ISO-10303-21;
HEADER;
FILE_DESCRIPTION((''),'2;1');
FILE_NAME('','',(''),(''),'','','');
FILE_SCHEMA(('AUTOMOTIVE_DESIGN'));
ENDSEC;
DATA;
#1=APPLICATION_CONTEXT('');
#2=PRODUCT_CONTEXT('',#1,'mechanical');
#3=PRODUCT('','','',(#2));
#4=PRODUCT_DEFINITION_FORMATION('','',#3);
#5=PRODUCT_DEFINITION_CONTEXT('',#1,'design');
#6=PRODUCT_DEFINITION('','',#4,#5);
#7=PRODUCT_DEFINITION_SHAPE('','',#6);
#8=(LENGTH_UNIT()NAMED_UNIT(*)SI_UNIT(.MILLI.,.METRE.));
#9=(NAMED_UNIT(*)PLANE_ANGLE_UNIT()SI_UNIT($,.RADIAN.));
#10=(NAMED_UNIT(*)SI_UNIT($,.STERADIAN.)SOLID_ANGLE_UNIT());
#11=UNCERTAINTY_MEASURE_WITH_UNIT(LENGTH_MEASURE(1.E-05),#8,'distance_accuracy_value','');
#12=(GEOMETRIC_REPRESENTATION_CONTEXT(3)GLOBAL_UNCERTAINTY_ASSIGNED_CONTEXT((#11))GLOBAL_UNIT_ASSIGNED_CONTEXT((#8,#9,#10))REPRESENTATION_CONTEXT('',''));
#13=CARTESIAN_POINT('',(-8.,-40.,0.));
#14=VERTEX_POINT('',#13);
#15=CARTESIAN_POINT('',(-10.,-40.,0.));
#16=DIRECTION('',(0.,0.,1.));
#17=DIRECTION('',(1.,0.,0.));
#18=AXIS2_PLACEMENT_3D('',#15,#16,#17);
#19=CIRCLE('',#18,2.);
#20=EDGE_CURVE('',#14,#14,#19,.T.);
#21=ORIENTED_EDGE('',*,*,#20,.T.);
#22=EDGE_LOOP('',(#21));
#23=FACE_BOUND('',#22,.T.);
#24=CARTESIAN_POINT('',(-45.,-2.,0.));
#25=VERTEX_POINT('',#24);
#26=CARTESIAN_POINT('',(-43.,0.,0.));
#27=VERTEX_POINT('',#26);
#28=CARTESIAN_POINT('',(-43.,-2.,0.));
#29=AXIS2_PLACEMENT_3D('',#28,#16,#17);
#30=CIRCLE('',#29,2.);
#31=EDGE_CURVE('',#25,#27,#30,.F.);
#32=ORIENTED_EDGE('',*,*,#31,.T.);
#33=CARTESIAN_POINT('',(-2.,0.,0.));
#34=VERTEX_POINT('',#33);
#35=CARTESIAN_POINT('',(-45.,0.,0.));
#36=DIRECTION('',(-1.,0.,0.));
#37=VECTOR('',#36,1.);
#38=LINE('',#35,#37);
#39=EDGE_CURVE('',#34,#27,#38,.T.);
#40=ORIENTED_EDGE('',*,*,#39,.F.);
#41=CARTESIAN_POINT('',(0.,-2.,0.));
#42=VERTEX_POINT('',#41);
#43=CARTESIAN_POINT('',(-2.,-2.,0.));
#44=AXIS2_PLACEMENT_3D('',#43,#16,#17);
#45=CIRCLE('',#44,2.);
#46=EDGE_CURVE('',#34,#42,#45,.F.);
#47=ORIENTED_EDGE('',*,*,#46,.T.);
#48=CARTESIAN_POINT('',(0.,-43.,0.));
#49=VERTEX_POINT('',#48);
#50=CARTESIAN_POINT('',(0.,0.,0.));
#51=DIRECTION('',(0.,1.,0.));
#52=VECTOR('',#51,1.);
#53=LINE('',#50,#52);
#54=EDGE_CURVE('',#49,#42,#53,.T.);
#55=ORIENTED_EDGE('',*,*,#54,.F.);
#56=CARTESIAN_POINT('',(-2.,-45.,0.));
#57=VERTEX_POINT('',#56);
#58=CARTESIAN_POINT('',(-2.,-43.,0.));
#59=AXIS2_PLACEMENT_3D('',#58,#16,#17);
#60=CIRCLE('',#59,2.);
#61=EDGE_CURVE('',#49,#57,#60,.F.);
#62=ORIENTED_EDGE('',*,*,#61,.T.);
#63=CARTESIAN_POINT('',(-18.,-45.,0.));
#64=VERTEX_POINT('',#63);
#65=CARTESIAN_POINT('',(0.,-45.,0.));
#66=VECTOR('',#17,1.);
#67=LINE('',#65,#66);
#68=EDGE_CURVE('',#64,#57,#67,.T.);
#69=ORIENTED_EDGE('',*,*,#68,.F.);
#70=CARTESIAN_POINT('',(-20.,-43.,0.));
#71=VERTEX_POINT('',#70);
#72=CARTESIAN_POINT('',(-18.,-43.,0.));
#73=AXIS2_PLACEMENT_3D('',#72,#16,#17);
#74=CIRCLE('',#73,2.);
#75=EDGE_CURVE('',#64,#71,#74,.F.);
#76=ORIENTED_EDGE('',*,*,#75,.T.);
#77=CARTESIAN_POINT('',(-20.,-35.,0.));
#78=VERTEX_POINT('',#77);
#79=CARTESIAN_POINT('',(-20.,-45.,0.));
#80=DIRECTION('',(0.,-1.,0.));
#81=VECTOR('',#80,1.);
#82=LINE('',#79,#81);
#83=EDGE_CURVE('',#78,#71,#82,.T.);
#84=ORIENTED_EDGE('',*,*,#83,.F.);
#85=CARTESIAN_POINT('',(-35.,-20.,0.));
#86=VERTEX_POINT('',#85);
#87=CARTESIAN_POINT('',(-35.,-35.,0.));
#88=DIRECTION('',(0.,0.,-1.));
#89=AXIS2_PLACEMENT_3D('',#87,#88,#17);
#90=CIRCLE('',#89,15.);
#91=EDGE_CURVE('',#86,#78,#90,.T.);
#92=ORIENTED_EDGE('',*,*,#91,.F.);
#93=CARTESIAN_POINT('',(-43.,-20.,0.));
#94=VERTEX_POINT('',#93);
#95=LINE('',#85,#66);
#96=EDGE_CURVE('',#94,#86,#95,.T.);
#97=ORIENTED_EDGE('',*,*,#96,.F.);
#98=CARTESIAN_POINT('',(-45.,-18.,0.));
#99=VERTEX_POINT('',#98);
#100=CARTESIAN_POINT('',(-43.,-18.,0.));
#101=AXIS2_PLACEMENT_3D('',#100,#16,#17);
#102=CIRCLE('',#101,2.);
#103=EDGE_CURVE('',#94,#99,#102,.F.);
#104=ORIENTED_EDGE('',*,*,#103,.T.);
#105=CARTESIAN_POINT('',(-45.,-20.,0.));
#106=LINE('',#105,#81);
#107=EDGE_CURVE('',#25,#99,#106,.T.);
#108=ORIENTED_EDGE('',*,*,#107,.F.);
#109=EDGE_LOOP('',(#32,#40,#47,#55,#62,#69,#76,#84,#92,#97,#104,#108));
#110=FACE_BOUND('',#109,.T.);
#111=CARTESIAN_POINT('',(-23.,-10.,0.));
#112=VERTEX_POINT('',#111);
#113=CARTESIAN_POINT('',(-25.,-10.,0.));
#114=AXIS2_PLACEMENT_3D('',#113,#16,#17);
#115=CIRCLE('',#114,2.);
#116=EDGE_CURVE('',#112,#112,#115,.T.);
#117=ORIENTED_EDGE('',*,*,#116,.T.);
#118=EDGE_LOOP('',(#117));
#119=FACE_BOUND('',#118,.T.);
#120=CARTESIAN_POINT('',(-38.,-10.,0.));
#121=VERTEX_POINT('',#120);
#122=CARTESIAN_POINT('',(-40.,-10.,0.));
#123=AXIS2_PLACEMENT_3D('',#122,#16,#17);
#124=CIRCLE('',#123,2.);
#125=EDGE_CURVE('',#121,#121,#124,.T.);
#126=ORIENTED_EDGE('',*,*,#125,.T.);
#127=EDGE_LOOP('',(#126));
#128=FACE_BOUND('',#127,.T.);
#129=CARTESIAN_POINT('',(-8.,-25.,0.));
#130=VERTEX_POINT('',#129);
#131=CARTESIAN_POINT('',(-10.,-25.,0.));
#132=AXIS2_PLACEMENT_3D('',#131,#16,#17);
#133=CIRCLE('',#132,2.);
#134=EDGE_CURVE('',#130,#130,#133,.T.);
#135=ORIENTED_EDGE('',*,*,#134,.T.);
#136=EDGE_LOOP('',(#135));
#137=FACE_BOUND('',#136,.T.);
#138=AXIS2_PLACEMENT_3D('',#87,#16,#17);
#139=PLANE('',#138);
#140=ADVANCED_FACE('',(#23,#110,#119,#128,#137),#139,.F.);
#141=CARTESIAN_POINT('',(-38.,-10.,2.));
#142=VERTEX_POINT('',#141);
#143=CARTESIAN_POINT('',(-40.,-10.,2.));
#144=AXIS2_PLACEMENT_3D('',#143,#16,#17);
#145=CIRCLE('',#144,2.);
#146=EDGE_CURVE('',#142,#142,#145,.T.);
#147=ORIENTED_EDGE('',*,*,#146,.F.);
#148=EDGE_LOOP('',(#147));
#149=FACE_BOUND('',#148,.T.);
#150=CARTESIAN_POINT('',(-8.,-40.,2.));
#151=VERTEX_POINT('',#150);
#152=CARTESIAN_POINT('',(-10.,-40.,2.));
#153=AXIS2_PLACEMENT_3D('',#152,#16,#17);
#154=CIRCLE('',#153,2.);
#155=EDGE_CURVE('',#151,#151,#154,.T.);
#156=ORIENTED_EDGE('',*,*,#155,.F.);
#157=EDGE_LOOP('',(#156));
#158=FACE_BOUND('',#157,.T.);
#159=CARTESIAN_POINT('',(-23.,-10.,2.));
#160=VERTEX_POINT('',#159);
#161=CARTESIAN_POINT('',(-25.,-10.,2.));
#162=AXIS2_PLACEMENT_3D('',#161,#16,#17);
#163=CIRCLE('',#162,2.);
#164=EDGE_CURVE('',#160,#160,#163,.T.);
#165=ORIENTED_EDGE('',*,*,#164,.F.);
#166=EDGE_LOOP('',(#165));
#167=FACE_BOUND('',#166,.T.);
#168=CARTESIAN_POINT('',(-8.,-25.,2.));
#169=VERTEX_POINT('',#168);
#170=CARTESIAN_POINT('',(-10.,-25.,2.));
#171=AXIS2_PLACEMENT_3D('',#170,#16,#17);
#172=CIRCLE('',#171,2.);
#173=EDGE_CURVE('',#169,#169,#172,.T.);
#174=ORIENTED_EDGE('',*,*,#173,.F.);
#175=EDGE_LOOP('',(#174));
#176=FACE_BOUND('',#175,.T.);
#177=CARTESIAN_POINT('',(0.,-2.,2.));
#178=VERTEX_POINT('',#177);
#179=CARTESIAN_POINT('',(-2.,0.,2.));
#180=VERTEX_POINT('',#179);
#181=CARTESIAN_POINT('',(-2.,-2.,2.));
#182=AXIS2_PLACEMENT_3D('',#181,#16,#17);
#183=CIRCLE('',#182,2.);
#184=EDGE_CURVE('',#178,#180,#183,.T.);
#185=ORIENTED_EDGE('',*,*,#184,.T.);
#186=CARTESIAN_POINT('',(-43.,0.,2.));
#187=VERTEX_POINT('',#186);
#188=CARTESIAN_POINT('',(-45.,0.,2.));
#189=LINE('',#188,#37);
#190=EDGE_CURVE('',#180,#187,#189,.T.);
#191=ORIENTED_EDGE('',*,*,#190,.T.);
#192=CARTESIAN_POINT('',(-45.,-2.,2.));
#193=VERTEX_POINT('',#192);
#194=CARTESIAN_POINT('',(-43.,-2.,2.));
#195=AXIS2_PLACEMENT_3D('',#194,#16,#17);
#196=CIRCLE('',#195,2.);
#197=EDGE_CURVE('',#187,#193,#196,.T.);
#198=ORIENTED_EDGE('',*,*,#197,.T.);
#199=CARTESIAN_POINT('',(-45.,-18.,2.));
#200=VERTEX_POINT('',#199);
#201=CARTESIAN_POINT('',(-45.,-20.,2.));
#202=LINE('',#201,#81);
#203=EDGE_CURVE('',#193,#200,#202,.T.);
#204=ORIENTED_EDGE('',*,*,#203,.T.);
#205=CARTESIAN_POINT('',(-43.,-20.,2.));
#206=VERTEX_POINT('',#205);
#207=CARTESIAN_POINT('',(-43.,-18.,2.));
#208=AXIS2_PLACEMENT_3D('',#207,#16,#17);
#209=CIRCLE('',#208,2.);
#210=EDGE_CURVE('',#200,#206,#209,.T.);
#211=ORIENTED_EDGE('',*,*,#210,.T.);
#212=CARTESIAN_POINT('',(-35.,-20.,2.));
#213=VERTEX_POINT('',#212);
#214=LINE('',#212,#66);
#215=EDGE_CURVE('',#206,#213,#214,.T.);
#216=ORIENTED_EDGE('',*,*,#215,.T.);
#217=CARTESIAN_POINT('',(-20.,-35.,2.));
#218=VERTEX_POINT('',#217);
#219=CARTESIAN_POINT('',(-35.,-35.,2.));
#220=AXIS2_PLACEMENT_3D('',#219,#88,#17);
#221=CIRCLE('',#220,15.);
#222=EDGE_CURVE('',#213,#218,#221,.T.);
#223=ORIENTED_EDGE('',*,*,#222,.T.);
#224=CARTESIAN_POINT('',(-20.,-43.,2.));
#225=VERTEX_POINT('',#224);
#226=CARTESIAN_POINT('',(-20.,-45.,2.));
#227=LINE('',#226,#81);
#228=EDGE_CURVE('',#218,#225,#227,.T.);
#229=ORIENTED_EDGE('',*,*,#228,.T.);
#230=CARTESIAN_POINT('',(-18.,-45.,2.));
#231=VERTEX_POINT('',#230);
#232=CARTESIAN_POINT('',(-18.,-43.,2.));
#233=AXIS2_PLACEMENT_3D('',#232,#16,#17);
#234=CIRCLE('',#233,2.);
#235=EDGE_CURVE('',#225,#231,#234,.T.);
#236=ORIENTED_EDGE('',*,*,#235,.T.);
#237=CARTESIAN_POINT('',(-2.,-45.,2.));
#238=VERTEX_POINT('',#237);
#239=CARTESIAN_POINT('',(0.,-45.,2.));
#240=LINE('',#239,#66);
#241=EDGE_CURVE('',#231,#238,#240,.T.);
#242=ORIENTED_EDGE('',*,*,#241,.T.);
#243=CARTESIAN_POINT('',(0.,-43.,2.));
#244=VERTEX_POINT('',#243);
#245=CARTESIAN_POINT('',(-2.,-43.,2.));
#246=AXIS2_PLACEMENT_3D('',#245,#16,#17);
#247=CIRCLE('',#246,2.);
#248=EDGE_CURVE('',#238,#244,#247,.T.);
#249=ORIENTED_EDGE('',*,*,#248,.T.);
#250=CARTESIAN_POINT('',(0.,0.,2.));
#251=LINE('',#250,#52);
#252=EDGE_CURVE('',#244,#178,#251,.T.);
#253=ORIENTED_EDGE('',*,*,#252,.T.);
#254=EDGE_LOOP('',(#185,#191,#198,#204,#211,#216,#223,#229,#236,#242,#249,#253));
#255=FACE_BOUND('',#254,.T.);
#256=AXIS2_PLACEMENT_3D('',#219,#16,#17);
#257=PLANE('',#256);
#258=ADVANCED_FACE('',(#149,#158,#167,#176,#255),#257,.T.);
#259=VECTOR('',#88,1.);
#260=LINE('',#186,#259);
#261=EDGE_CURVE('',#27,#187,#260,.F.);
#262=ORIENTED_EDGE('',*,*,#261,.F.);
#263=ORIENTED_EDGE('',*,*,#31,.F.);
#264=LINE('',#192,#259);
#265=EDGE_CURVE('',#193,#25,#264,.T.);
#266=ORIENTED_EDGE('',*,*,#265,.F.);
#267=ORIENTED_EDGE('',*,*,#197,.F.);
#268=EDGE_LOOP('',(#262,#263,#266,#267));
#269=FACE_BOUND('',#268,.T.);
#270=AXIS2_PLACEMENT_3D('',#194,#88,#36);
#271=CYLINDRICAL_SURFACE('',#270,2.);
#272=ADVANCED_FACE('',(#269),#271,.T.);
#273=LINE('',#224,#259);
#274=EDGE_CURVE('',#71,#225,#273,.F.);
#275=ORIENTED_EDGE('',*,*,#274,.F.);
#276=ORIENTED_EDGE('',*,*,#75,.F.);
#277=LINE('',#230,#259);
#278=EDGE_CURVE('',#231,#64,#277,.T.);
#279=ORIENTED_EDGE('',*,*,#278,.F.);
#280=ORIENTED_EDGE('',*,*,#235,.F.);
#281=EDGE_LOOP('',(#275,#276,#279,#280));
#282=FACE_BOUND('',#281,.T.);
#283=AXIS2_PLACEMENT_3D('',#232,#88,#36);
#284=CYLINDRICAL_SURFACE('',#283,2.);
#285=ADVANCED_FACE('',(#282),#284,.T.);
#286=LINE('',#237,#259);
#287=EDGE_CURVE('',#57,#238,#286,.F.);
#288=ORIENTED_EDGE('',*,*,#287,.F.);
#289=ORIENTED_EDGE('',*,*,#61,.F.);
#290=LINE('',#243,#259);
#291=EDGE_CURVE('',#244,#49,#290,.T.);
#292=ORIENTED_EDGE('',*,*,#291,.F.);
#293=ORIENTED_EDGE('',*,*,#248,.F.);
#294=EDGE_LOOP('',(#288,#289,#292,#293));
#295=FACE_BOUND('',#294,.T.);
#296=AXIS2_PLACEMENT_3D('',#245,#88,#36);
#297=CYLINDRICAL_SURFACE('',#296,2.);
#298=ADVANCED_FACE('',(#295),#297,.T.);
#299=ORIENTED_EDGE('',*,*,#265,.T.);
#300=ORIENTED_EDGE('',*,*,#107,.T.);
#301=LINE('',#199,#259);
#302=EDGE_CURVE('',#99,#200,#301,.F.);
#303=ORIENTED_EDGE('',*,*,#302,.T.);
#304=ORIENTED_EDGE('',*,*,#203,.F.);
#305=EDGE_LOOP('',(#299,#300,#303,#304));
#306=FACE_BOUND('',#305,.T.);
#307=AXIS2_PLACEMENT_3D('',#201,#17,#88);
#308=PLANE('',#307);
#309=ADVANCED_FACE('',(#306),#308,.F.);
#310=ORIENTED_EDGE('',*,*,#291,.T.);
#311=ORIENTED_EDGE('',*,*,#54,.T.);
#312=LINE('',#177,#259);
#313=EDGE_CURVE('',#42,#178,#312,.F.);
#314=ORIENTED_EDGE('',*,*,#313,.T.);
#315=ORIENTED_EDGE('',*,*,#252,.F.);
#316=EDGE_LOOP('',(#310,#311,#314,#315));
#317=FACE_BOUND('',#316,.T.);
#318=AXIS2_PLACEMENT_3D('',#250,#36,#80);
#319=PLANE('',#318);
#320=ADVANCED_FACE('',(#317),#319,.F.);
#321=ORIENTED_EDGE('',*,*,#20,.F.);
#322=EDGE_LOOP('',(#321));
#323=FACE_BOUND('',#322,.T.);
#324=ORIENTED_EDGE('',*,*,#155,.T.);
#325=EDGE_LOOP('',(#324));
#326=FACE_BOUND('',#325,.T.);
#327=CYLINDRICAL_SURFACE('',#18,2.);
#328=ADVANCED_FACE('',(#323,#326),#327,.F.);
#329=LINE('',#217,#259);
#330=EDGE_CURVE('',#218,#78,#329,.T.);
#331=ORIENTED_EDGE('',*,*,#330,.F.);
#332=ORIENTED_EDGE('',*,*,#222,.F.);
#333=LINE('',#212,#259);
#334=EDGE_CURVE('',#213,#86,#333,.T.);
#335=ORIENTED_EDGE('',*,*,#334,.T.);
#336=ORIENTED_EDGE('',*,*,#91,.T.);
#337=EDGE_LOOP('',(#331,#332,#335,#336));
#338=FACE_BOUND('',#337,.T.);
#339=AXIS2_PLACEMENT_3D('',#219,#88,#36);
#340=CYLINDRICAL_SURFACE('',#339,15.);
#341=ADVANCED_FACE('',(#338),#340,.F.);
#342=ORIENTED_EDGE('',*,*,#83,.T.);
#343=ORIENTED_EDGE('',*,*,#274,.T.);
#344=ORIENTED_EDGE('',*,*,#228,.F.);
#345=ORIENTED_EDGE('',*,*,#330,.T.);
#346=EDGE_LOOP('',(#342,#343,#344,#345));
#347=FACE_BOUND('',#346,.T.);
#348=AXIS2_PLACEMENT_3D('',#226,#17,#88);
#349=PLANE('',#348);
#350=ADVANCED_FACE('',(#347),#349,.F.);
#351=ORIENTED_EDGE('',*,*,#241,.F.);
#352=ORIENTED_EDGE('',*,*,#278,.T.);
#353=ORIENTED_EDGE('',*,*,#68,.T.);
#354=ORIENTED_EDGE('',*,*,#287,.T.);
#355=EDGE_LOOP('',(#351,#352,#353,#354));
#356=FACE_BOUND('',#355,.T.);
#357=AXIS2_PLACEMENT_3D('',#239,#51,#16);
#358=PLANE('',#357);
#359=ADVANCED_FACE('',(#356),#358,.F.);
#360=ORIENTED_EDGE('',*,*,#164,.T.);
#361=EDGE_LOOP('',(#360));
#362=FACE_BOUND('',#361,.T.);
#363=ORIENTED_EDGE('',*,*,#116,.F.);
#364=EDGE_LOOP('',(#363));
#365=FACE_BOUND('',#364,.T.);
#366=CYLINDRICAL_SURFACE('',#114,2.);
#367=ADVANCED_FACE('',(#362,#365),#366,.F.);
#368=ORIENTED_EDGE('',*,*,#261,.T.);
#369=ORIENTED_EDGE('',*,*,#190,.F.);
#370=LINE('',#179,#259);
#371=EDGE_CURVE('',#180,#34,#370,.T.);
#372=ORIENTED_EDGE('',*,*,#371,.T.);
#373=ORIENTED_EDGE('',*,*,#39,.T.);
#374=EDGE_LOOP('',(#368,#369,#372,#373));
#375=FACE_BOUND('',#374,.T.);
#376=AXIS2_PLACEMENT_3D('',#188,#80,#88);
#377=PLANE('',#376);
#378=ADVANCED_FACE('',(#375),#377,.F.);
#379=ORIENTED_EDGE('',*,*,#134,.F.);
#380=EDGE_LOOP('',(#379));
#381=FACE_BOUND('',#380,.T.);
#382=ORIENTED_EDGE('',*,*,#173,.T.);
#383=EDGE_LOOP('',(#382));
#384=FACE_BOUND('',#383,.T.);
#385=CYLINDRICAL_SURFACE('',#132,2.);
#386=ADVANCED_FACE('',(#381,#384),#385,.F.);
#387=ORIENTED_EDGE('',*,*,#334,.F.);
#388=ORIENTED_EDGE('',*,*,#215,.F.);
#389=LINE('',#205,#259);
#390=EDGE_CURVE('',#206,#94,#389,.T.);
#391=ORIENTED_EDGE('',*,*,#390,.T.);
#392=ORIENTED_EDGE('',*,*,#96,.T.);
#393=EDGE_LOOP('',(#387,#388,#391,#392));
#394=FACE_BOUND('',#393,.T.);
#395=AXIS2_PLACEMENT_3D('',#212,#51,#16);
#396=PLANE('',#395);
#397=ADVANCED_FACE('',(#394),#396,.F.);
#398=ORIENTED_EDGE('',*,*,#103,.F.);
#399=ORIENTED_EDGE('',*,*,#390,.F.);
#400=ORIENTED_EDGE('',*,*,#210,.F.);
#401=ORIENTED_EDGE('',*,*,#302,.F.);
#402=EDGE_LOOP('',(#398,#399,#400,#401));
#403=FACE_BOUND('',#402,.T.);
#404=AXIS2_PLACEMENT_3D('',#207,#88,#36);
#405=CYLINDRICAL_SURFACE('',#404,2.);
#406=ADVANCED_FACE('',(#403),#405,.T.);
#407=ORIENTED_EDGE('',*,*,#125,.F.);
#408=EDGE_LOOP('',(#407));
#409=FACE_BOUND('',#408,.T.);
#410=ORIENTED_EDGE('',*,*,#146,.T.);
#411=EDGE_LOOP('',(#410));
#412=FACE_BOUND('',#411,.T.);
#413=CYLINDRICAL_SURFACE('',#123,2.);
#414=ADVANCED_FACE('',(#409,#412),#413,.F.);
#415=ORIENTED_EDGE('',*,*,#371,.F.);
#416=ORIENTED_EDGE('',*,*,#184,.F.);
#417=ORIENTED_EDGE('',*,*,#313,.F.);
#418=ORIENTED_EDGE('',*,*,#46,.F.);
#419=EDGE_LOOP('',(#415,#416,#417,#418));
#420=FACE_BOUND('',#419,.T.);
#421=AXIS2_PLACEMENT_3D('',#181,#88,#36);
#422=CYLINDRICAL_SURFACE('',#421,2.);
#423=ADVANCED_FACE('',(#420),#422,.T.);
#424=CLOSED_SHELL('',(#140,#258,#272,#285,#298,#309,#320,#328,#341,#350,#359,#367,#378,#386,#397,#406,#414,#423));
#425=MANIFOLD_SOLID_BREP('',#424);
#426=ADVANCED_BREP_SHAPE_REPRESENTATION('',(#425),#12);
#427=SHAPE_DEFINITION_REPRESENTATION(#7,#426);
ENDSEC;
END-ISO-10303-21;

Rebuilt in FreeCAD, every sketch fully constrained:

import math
import FreeCAD as App
import Part
import Sketcher

V = App.Vector
Q = App.Units.Quantity


def edges_at(feature, points):
    """Names of the edges that pass closest to the given points."""
    edges = feature.Shape.Edges
    near = lambda p: min(range(len(edges)), key=lambda i: edges[i].distToShape(Part.Vertex(*p))[0])
    return sorted({f"Edge{near(p) + 1}" for p in points})

doc = App.newDocument("Part")
body = doc.addObject("PartDesign::Body", "Body")

sketch1 = body.newObject("Sketcher::SketchObject", "Sketch")
sketch1.AttachmentSupport = (doc.getObject("XY_Plane"), [""])
sketch1.MapMode = "FlatFace"
sketch1.addGeometry(Part.LineSegment(V(0, -45, 0), V(0, 0, 0)), False)
sketch1.addGeometry(Part.LineSegment(V(0, 0, 0), V(-45, 0, 0)), False)
sketch1.addGeometry(Part.LineSegment(V(-45, 0, 0), V(-45, -20, 0)), False)
sketch1.addGeometry(Part.LineSegment(V(-45, -20, 0), V(-35, -20, 0)), False)
sketch1.addGeometry(Part.ArcOfCircle(Part.Circle(V(-35, -35, 0), V(0, 0, 1), 15), math.radians(0), math.radians(90)), False)
sketch1.addGeometry(Part.LineSegment(V(-20, -35, 0), V(-20, -45, 0)), False)
sketch1.addGeometry(Part.LineSegment(V(-20, -45, 0), V(0, -45, 0)), False)
sketch1.addConstraint(Sketcher.Constraint("Coincident", 0, 2, 1, 1))
sketch1.addConstraint(Sketcher.Constraint("Coincident", 1, 2, 2, 1))
sketch1.addConstraint(Sketcher.Constraint("Coincident", 2, 2, 3, 1))
sketch1.addConstraint(Sketcher.Constraint("Tangent", 3, 2, 4, 2))
sketch1.addConstraint(Sketcher.Constraint("Tangent", 4, 1, 5, 1))
sketch1.addConstraint(Sketcher.Constraint("Coincident", 5, 2, 6, 1))
sketch1.addConstraint(Sketcher.Constraint("Coincident", 6, 2, 0, 1))
sketch1.addConstraint(Sketcher.Constraint("Vertical", 0))
sketch1.addConstraint(Sketcher.Constraint("Horizontal", 1))
sketch1.addConstraint(Sketcher.Constraint("Vertical", 2))
sketch1.addConstraint(Sketcher.Constraint("Horizontal", 3))
sketch1.addConstraint(Sketcher.Constraint("Vertical", 5))
sketch1.addConstraint(Sketcher.Constraint("Horizontal", 6))
sketch1.addConstraint(Sketcher.Constraint("Coincident", 0, 2, -1, 1))
sketch1.addConstraint(Sketcher.Constraint("Equal", 1, 0))
sketch1.addConstraint(Sketcher.Constraint("Equal", 6, 2))
sketch1.addConstraint(Sketcher.Constraint("Radius", 4, Q("15 mm")))
sketch1.addConstraint(Sketcher.Constraint("DistanceX", 1, 2, 1, 1, Q("45 mm")))
sketch1.addConstraint(Sketcher.Constraint("DistanceX", 3, 1, 3, 2, Q("10 mm")))
pad1 = body.newObject("PartDesign::Pad", "Pad")
pad1.Profile = sketch1
pad1.Length = 2

sketch2 = body.newObject("Sketcher::SketchObject", "Sketch001")
sketch2.AttachmentSupport = (doc.getObject("XY_Plane"), [""])
sketch2.MapMode = "FlatFace"
sketch2.AttachmentOffset = App.Placement(V(0, 0, 2), App.Rotation())
sketch2.addGeometry(Part.Circle(V(-10, -40, 0), V(0, 0, 1), 2), False)
sketch2.addGeometry(Part.Circle(V(-10, -25, 0), V(0, 0, 1), 2), False)
sketch2.addGeometry(Part.Circle(V(-25, -10, 0), V(0, 0, 1), 2), False)
sketch2.addGeometry(Part.Circle(V(-40, -10, 0), V(0, 0, 1), 2), False)
sketch2.addConstraint(Sketcher.Constraint("Equal", 0, 1))
sketch2.addConstraint(Sketcher.Constraint("Equal", 1, 2))
sketch2.addConstraint(Sketcher.Constraint("Equal", 2, 3))
sketch2.addConstraint(Sketcher.Constraint("Horizontal", 2, 3, 3, 3))
sketch2.addConstraint(Sketcher.Constraint("Vertical", 0, 3, 1, 3))
sketch2.addConstraint(Sketcher.Constraint("Diameter", 0, Q("4 mm")))
sketch2.addConstraint(Sketcher.Constraint("DistanceX", 0, 3, -1, 1, Q("10 mm")))
sketch2.addConstraint(Sketcher.Constraint("DistanceY", 0, 3, -1, 1, Q("40 mm")))
sketch2.addConstraint(Sketcher.Constraint("DistanceY", 1, 3, -1, 1, Q("25 mm")))
sketch2.addConstraint(Sketcher.Constraint("DistanceX", 2, 3, -1, 1, Q("25 mm")))
sketch2.addConstraint(Sketcher.Constraint("DistanceY", 2, 3, -1, 1, Q("10 mm")))
sketch2.addConstraint(Sketcher.Constraint("DistanceX", 3, 3, -1, 1, Q("40 mm")))
pocket1 = body.newObject("PartDesign::Pocket", "Pocket")
pocket1.Profile = sketch2
pocket1.Length = 2
doc.recompute()

fillet = body.newObject("PartDesign::Fillet", "Fillet")
fillet.Base = (pocket1, edges_at(pocket1, [
    (0, 0, 1),
    (0, -45, 1),
    (-20, -45, 1),
    (-45, -20, 1),
    (-45, 0, 1),
]))
fillet.Radius = 2

doc.recompute()
